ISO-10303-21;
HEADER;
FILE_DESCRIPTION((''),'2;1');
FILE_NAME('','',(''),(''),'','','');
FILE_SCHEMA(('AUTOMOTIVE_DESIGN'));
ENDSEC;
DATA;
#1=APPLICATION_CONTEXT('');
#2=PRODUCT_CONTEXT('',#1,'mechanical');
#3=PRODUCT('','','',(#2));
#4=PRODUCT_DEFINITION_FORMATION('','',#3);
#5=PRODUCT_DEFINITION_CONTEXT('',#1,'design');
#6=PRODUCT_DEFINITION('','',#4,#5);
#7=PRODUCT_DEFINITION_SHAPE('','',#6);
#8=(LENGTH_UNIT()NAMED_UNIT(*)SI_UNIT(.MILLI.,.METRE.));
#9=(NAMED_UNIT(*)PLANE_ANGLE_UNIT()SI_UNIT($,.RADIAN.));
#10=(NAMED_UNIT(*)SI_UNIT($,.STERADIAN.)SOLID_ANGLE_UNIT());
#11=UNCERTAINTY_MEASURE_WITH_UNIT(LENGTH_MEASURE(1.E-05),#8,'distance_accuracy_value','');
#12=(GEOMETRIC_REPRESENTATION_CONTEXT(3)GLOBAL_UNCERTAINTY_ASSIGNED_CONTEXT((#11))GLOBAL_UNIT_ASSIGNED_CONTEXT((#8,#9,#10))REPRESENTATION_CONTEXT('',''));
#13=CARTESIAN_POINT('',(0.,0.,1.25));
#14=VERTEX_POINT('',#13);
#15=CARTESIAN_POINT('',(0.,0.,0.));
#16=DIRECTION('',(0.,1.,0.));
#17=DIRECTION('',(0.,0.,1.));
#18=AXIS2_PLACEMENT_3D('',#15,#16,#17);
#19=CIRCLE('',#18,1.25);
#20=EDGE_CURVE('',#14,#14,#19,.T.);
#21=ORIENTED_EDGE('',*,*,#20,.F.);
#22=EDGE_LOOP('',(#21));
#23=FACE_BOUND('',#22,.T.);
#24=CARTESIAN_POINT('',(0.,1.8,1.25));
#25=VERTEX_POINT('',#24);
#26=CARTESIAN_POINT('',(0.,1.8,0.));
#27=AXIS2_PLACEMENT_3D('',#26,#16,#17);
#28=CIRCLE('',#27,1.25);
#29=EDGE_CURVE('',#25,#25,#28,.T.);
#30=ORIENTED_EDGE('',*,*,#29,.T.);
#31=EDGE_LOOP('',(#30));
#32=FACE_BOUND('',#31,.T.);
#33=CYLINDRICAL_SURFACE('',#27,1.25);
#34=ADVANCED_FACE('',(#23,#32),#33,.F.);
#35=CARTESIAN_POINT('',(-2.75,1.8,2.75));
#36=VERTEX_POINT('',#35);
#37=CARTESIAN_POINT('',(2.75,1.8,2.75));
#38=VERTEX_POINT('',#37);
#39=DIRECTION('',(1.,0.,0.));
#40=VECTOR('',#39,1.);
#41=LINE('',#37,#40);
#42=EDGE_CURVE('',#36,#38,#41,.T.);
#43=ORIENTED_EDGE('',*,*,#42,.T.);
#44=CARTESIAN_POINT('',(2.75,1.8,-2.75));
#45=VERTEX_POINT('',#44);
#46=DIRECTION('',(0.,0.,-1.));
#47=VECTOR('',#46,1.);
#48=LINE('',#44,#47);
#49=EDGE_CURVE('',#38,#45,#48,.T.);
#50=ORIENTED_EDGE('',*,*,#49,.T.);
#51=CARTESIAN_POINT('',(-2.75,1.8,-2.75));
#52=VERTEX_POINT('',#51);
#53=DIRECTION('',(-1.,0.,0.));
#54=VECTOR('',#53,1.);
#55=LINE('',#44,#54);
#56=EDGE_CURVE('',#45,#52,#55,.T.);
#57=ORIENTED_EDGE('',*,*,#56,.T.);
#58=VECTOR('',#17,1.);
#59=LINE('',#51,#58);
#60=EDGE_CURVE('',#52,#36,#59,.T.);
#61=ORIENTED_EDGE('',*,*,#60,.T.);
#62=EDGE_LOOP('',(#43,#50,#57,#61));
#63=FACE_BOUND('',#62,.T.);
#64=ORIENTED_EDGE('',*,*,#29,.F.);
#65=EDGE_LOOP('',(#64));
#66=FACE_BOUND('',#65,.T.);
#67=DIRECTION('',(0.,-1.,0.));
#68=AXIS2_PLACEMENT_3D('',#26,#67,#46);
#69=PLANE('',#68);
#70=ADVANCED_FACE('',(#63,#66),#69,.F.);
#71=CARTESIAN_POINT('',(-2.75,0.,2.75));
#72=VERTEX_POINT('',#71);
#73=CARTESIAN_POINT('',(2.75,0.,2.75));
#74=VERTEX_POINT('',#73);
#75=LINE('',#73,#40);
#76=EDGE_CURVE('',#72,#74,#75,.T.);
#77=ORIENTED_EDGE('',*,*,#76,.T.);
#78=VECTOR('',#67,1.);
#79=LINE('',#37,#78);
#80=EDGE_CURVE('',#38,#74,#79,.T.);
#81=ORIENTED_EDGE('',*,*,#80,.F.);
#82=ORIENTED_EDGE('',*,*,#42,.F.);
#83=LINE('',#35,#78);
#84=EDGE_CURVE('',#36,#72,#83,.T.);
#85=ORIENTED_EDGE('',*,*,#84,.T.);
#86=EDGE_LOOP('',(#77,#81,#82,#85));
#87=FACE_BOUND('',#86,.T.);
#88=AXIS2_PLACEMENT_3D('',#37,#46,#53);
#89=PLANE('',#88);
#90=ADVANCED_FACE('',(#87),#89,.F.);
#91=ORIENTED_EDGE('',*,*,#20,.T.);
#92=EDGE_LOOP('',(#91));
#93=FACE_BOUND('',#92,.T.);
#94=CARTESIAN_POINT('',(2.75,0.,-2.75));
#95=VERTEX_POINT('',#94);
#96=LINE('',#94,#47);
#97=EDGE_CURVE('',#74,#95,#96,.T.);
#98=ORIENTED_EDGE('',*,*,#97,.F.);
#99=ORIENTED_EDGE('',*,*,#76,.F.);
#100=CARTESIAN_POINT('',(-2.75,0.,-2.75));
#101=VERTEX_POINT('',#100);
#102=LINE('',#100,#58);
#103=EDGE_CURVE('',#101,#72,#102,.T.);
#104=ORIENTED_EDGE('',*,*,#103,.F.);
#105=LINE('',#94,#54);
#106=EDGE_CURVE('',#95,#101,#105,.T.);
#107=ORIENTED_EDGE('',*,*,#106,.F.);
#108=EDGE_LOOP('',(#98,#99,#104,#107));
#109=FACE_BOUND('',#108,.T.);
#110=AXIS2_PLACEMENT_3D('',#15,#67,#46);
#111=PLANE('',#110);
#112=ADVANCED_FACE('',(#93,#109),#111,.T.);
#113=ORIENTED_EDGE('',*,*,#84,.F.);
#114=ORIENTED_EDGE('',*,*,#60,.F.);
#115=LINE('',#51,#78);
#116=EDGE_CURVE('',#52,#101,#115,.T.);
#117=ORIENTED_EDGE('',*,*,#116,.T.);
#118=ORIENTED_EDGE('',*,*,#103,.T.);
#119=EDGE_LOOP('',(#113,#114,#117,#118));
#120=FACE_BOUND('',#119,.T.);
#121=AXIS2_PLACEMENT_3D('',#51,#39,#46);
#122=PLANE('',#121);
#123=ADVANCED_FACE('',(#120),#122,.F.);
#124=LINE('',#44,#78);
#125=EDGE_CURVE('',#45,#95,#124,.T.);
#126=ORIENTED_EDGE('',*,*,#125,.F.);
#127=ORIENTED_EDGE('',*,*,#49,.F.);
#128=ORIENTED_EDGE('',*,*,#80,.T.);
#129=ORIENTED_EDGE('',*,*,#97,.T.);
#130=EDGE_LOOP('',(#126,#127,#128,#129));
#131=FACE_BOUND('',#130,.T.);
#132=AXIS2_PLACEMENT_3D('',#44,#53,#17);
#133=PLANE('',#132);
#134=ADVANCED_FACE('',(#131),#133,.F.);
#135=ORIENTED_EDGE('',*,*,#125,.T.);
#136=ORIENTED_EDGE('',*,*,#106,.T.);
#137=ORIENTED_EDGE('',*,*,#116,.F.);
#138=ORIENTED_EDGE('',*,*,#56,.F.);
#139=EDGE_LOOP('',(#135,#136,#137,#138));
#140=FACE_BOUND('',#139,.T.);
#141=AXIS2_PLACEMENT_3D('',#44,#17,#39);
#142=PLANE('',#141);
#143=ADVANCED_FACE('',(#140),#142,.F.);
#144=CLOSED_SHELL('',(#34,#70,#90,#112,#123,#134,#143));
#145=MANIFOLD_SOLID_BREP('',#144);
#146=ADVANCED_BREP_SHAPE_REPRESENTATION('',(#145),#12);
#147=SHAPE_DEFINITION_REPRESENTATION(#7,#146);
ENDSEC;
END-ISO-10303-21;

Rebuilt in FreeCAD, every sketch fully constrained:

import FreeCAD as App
import Part
import Sketcher
Q = App.Units.Quantity


def add_polygon(sketch, points):
    """Adds a closed chain of lines whose ends are joined by coincident constraints."""
    first, n = sketch.GeometryCount, len(points)
    for a, b in zip(points, points[1:] + points[:1]):
        sketch.addGeometry(Part.LineSegment(App.Vector(*a, 0), App.Vector(*b, 0)), False)
    for i in range(n):
        sketch.addConstraint(Sketcher.Constraint("Coincident", first + i, 2, first + (i + 1) % n, 1))

doc = App.newDocument("Part")
params = doc.addObject("Spreadsheet::Sheet", "Params")
for row, (alias, value) in enumerate([
    ("sketch1_width", "5.5 mm"),
    ("pad1_length", "1.8 mm"),
    ("sketch2_diameter", "2.5 mm"),
    ("hole_diameter", "2.5 mm"),
], start=1):
    params.set(f"A{row}", alias)
    params.set(f"B{row}", "=" + value)
    params.setAlias(f"B{row}", alias)

body = doc.addObject("PartDesign::Body", "Body")

# Sketch on XZ plane
sketch1 = doc.addObject("Sketcher::SketchObject", "Sketch")
body.addObject(sketch1)
sketch1.AttachmentSupport = (doc.XZ_Plane, [""])
sketch1.MapMode = "FlatFace"
add_polygon(sketch1, [(-3, -3), (-3, 3), (3, 3), (3, -3)])  # lines 0-3
sketch1.addConstraint(Sketcher.Constraint("Vertical", 0))
sketch1.addConstraint(Sketcher.Constraint("Horizontal", 1))
sketch1.addConstraint(Sketcher.Constraint("Vertical", 2))
sketch1.addConstraint(Sketcher.Constraint("Horizontal", 3))
sketch1.addConstraint(Sketcher.Constraint("Symmetric", 0, 2, 2, 2, -1, 1))
sketch1.addConstraint(Sketcher.Constraint("Equal", 3, 0))
sketch1.addConstraint(Sketcher.Constraint("DistanceX", 1, 1, 1, 2, Q("5.5 mm")))
sketch1.setExpression("Constraints[10]", "Params.sketch1_width")
pad1 = doc.addObject("PartDesign::Pad", "Pad")
body.addObject(pad1)
pad1.Profile = sketch1
pad1.setExpression("Length", "Params.pad1_length")
pad1.Reversed = True

# Sketch on XZ plane
sketch2 = doc.addObject("Sketcher::SketchObject", "Sketch001")
body.addObject(sketch2)
sketch2.AttachmentSupport = (doc.XZ_Plane, [""])
sketch2.MapMode = "FlatFace"
sketch2.AttachmentOffset = App.Placement(App.Vector(0, 0, -1.8), App.Rotation())
sketch2.addGeometry(Part.Circle(App.Vector(0, 0, 0), App.Vector(0, 0, 1), 1.2), False)
sketch2.addConstraint(Sketcher.Constraint("Coincident", 0, 3, -1, 1))
sketch2.addConstraint(Sketcher.Constraint("Diameter", 0, Q("2.5 mm")))
sketch2.setExpression("Constraints[1]", "Params.sketch2_diameter")
doc.recompute()
hole = doc.addObject("PartDesign::Hole", "Hole")
body.addObject(hole)
hole.Profile = sketch2
hole.ThreadType = "None"
hole.setExpression("Diameter", "Params.hole_diameter")
hole.DepthType = "ThroughAll"
hole.Reversed = True

doc.recompute()
